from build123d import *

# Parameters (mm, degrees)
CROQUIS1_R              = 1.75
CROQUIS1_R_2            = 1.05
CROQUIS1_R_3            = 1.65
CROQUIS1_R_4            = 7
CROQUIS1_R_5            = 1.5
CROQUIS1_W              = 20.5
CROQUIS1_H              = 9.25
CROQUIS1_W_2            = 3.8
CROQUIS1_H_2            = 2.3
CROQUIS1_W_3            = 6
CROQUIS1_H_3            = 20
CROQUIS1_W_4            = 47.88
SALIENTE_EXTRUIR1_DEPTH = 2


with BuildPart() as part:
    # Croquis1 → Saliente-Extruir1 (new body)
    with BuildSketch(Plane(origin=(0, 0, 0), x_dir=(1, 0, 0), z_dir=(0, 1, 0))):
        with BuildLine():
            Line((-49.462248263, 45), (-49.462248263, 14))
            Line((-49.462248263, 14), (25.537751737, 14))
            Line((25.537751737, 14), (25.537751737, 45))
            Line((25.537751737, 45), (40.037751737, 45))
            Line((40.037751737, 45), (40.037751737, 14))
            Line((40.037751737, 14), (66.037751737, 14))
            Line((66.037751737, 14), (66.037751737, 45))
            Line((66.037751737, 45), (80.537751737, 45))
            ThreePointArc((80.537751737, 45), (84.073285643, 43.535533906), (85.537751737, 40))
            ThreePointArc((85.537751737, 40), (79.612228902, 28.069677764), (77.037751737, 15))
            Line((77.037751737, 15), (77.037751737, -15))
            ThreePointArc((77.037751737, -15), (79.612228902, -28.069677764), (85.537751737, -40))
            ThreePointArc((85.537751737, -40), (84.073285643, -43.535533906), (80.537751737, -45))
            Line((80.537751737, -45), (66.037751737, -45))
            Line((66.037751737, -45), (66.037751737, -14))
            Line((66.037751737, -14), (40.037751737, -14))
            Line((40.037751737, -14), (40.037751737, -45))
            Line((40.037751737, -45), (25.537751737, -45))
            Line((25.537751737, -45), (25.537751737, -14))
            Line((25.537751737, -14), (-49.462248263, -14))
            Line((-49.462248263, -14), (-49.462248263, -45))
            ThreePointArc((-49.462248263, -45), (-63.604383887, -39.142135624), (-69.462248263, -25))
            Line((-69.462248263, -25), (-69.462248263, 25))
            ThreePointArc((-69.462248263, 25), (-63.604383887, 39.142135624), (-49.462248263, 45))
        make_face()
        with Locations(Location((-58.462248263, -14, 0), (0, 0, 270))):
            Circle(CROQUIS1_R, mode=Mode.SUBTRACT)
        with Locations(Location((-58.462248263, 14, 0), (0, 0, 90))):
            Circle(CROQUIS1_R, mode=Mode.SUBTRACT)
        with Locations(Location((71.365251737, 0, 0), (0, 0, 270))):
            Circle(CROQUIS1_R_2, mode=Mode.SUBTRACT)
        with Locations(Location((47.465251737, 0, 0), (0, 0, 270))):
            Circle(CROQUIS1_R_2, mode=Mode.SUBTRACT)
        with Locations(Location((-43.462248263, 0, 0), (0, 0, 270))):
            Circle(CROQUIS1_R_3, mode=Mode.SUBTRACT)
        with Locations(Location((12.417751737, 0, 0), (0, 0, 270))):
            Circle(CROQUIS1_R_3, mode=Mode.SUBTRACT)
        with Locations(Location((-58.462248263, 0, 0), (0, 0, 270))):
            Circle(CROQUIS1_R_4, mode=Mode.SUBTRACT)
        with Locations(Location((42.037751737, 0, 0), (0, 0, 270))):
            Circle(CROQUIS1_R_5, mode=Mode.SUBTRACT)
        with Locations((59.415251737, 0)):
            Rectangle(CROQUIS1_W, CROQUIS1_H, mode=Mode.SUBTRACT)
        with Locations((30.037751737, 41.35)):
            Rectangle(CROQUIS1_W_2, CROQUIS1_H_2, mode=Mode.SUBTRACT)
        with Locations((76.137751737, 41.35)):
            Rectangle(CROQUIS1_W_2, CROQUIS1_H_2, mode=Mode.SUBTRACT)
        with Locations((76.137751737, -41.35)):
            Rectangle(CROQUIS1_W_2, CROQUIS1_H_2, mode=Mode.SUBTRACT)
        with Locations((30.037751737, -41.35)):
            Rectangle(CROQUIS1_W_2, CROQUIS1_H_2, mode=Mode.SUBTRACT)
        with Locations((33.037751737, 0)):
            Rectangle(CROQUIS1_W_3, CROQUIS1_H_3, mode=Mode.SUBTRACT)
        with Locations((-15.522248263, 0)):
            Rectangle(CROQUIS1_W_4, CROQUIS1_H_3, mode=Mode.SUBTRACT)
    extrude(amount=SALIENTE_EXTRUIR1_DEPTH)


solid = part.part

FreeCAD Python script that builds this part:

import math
import FreeCAD as App
import Part
import Sketcher
Q = App.Units.Quantity

doc = App.newDocument("Part")
body = doc.addObject("PartDesign::Body", "Body")

# Sketch on XZ plane
sketch1 = body.newObject("Sketcher::SketchObject", "Sketch")
sketch1.AttachmentSupport = (doc.getObject("XZ_Plane"), [""])
sketch1.MapMode = "FlatFace"
sketch1.addGeometry([
    Part.LineSegment(App.Vector(-49.462248, -14, 0), App.Vector(-49.462248, -45, 0)),  # 0
    Part.ArcOfCircle(Part.Circle(App.Vector(-49.462248, -25, 0), App.Vector(0, 0, 1), 20), math.radians(180), math.radians(270)),  # 1
    Part.LineSegment(App.Vector(-69.462248, -25, 0), App.Vector(-69.462248, 25, 0)),  # 2
    Part.ArcOfCircle(Part.Circle(App.Vector(-49.462248, 25, 0), App.Vector(0, 0, 1), 20), math.radians(90), math.radians(180)),  # 3
    Part.LineSegment(App.Vector(-49.462248, 45, 0), App.Vector(-49.462248, 14, 0)),  # 4
    Part.LineSegment(App.Vector(-49.462248, 14, 0), App.Vector(25.537752, 14, 0)),  # 5
    Part.LineSegment(App.Vector(25.537752, 14, 0), App.Vector(25.537752, 45, 0)),  # 6
    Part.LineSegment(App.Vector(25.537752, 45, 0), App.Vector(40.037752, 45, 0)),  # 7
    Part.LineSegment(App.Vector(40.037752, 45, 0), App.Vector(40.037752, 14, 0)),  # 8
    Part.LineSegment(App.Vector(40.037752, 14, 0), App.Vector(66.037752, 14, 0)),  # 9
    Part.LineSegment(App.Vector(66.037752, 14, 0), App.Vector(66.037752, 45, 0)),  # 10
    Part.LineSegment(App.Vector(66.037752, 45, 0), App.Vector(80.537752, 45, 0)),  # 11
    Part.ArcOfCircle(Part.Circle(App.Vector(80.537752, 40, 0), App.Vector(0, 0, 1), 5), math.radians(0), math.radians(90)),  # 12
    Part.ArcOfCircle(Part.Circle(App.Vector(127.077227, 11.931578, 0), App.Vector(0, 0, 1), 50.133465), math.radians(145.952918), math.radians(176.491015)),  # 13
    Part.LineSegment(App.Vector(77.037752, 15, 0), App.Vector(77.037752, -15, 0)),  # 14
    Part.ArcOfCircle(Part.Circle(App.Vector(127.077227, -11.931578, 0), App.Vector(0, 0, 1), 50.133465), math.radians(-176.491015), math.radians(-145.952918)),  # 15
    Part.ArcOfCircle(Part.Circle(App.Vector(80.537752, -40, 0), App.Vector(0, 0, 1), 5), math.radians(-90), math.radians(0)),  # 16
    Part.LineSegment(App.Vector(80.537752, -45, 0), App.Vector(66.037752, -45, 0)),  # 17
    Part.LineSegment(App.Vector(66.037752, -45, 0), App.Vector(66.037752, -14, 0)),  # 18
    Part.LineSegment(App.Vector(66.037752, -14, 0), App.Vector(40.037752, -14, 0)),  # 19
    Part.LineSegment(App.Vector(40.037752, -14, 0), App.Vector(40.037752, -45, 0)),  # 20
    Part.LineSegment(App.Vector(40.037752, -45, 0), App.Vector(25.537752, -45, 0)),  # 21
    Part.LineSegment(App.Vector(25.537752, -45, 0), App.Vector(25.537752, -14, 0)),  # 22
    Part.LineSegment(App.Vector(25.537752, -14, 0), App.Vector(-49.462248, -14, 0)),  # 23
    Part.LineSegment(App.Vector(74.237752, 42.5, 0), App.Vector(74.237752, 40.2, 0)),  # 24
    Part.LineSegment(App.Vector(74.237752, 40.2, 0), App.Vector(78.037752, 40.2, 0)),  # 25
    Part.LineSegment(App.Vector(78.037752, 40.2, 0), App.Vector(78.037752, 42.5, 0)),  # 26
    Part.LineSegment(App.Vector(78.037752, 42.5, 0), App.Vector(74.237752, 42.5, 0)),  # 27
    Part.LineSegment(App.Vector(28.137752, 42.5, 0), App.Vector(28.137752, 40.2, 0)),  # 28
    Part.LineSegment(App.Vector(28.137752, 40.2, 0), App.Vector(31.937752, 40.2, 0)),  # 29
    Part.LineSegment(App.Vector(31.937752, 40.2, 0), App.Vector(31.937752, 42.5, 0)),  # 30
    Part.LineSegment(App.Vector(31.937752, 42.5, 0), App.Vector(28.137752, 42.5, 0)),  # 31
    Part.Circle(App.Vector(-58.462248, 14, 0), App.Vector(0, 0, 1), 1.75),  # 32
    Part.Circle(App.Vector(71.365252, 0, 0), App.Vector(0, 0, 1), 1.05),  # 33
    Part.LineSegment(App.Vector(49.165252, 4.625, 0), App.Vector(49.165252, -4.625, 0)),  # 34
    Part.LineSegment(App.Vector(49.165252, -4.625, 0), App.Vector(69.665252, -4.625, 0)),  # 35
    Part.LineSegment(App.Vector(69.665252, -4.625, 0), App.Vector(69.665252, 4.625, 0)),  # 36
    Part.LineSegment(App.Vector(69.665252, 4.625, 0), App.Vector(49.165252, 4.625, 0)),  # 37
    Part.Circle(App.Vector(47.465252, 0, 0), App.Vector(0, 0, 1), 1.05),  # 38
    Part.Circle(App.Vector(42.037752, 0, 0), App.Vector(0, 0, 1), 1.5),  # 39
    Part.LineSegment(App.Vector(30.037752, 10, 0), App.Vector(30.037752, -10, 0)),  # 40
    Part.LineSegment(App.Vector(30.037752, -10, 0), App.Vector(36.037752, -10, 0)),  # 41
    Part.LineSegment(App.Vector(36.037752, -10, 0), App.Vector(36.037752, 10, 0)),  # 42
    Part.LineSegment(App.Vector(36.037752, 10, 0), App.Vector(30.037752, 10, 0)),  # 43
    Part.Circle(App.Vector(12.417752, 0, 0), App.Vector(0, 0, 1), 1.65),  # 44
    Part.LineSegment(App.Vector(74.237752, -40.2, 0), App.Vector(74.237752, -42.5, 0)),  # 45
    Part.LineSegment(App.Vector(74.237752, -42.5, 0), App.Vector(78.037752, -42.5, 0)),  # 46
    Part.LineSegment(App.Vector(78.037752, -42.5, 0), App.Vector(78.037752, -40.2, 0)),  # 47
    Part.LineSegment(App.Vector(78.037752, -40.2, 0), App.Vector(74.237752, -40.2, 0)),  # 48
    Part.LineSegment(App.Vector(28.137752, -40.2, 0), App.Vector(28.137752, -42.5, 0)),  # 49
    Part.LineSegment(App.Vector(28.137752, -42.5, 0), App.Vector(31.937752, -42.5, 0)),  # 50
    Part.LineSegment(App.Vector(31.937752, -42.5, 0), App.Vector(31.937752, -40.2, 0)),  # 51
    Part.LineSegment(App.Vector(31.937752, -40.2, 0), App.Vector(28.137752, -40.2, 0)),  # 52
    Part.LineSegment(App.Vector(-39.462248, 10, 0), App.Vector(-39.462248, -10, 0)),  # 53
    Part.LineSegment(App.Vector(-39.462248, -10, 0), App.Vector(8.417752, -10, 0)),  # 54
    Part.LineSegment(App.Vector(8.417752, -10, 0), App.Vector(8.417752, 10, 0)),  # 55
    Part.LineSegment(App.Vector(8.417752, 10, 0), App.Vector(-39.462248, 10, 0)),  # 56
    Part.Circle(App.Vector(-43.462248, 0, 0), App.Vector(0, 0, 1), 1.65),  # 57
    Part.Circle(App.Vector(-58.462248, 0, 0), App.Vector(0, 0, 1), 7),  # 58
    Part.Circle(App.Vector(-58.462248, -14, 0), App.Vector(0, 0, 1), 1.75),  # 59
], False)
sketch1.addConstraint([
    Sketcher.Constraint("Coincident", 0, 2, 1, 2),
    Sketcher.Constraint("Tangent", 1, 1, 2, 1),
    Sketcher.Constraint("Tangent", 2, 2, 3, 2),
    Sketcher.Constraint("Coincident", 3, 1, 4, 1),
    Sketcher.Constraint("Coincident", 4, 2, 5, 1),
    Sketcher.Constraint("Coincident", 5, 2, 6, 1),
    Sketcher.Constraint("Coincident", 6, 2, 7, 1),
    Sketcher.Constraint("Coincident", 7, 2, 8, 1),
    Sketcher.Constraint("Coincident", 8, 2, 9, 1),
    Sketcher.Constraint("Coincident", 9, 2, 10, 1),
    Sketcher.Constraint("Coincident", 10, 2, 11, 1),
    Sketcher.Constraint("Tangent", 11, 2, 12, 2),
    Sketcher.Constraint("Coincident", 12, 1, 13, 1),
    Sketcher.Constraint("Coincident", 13, 2, 14, 1),
    Sketcher.Constraint("Coincident", 14, 2, 15, 1),
    Sketcher.Constraint("Coincident", 15, 2, 16, 2),
    Sketcher.Constraint("Tangent", 16, 1, 17, 1),
    Sketcher.Constraint("Coincident", 17, 2, 18, 1),
    Sketcher.Constraint("Coincident", 18, 2, 19, 1),
    Sketcher.Constraint("Coincident", 19, 2, 20, 1),
    Sketcher.Constraint("Coincident", 20, 2, 21, 1),
    Sketcher.Constraint("Coincident", 21, 2, 22, 1),
    Sketcher.Constraint("Coincident", 22, 2, 23, 1),
    Sketcher.Constraint("Coincident", 23, 2, 0, 1),
    Sketcher.Constraint("Coincident", 24, 2, 25, 1),
    Sketcher.Constraint("Coincident", 25, 2, 26, 1),
    Sketcher.Constraint("Coincident", 26, 2, 27, 1),
    Sketcher.Constraint("Coincident", 27, 2, 24, 1),
    Sketcher.Constraint("Coincident", 28, 2, 29, 1),
    Sketcher.Constraint("Coincident", 29, 2, 30, 1),
    Sketcher.Constraint("Coincident", 30, 2, 31, 1),
    Sketcher.Constraint("Coincident", 31, 2, 28, 1),
    Sketcher.Constraint("Coincident", 34, 2, 35, 1),
    Sketcher.Constraint("Coincident", 35, 2, 36, 1),
    Sketcher.Constraint("Coincident", 36, 2, 37, 1),
    Sketcher.Constraint("Coincident", 37, 2, 34, 1),
    Sketcher.Constraint("Coincident", 40, 2, 41, 1),
    Sketcher.Constraint("Coincident", 41, 2, 42, 1),
    Sketcher.Constraint("Coincident", 42, 2, 43, 1),
    Sketcher.Constraint("Coincident", 43, 2, 40, 1),
    Sketcher.Constraint("Coincident", 45, 2, 46, 1),
    Sketcher.Constraint("Coincident", 46, 2, 47, 1),
    Sketcher.Constraint("Coincident", 47, 2, 48, 1),
    Sketcher.Constraint("Coincident", 48, 2, 45, 1),
    Sketcher.Constraint("Coincident", 49, 2, 50, 1),
    Sketcher.Constraint("Coincident", 50, 2, 51, 1),
    Sketcher.Constraint("Coincident", 51, 2, 52, 1),
    Sketcher.Constraint("Coincident", 52, 2, 49, 1),
    Sketcher.Constraint("Coincident", 53, 2, 54, 1),
    Sketcher.Constraint("Coincident", 54, 2, 55, 1),
    Sketcher.Constraint("Coincident", 55, 2, 56, 1),
    Sketcher.Constraint("Coincident", 56, 2, 53, 1),
    Sketcher.Constraint("Vertical", 0),
    Sketcher.Constraint("Vertical", 2),
    Sketcher.Constraint("Vertical", 4),
    Sketcher.Constraint("Horizontal", 5),
    Sketcher.Constraint("Vertical", 6),
    Sketcher.Constraint("Horizontal", 7),
    Sketcher.Constraint("Vertical", 8),
    Sketcher.Constraint("Horizontal", 9),
    Sketcher.Constraint("Vertical", 10),
    Sketcher.Constraint("Horizontal", 11),
    Sketcher.Constraint("Vertical", 14),
    Sketcher.Constraint("Horizontal", 17),
    Sketcher.Constraint("Vertical", 18),
    Sketcher.Constraint("Horizontal", 19),
    Sketcher.Constraint("Vertical", 20),
    Sketcher.Constraint("Horizontal", 21),
    Sketcher.Constraint("Vertical", 22),
    Sketcher.Constraint("Horizontal", 23),
    Sketcher.Constraint("Vertical", 24),
    Sketcher.Constraint("Horizontal", 25),
    Sketcher.Constraint("Vertical", 26),
    Sketcher.Constraint("Horizontal", 27),
    Sketcher.Constraint("Vertical", 28),
    Sketcher.Constraint("Horizontal", 29),
    Sketcher.Constraint("Vertical", 30),
    Sketcher.Constraint("Horizontal", 31),
    Sketcher.Constraint("Vertical", 34),
    Sketcher.Constraint("Horizontal", 35),
    Sketcher.Constraint("Vertical", 36),
    Sketcher.Constraint("Horizontal", 37),
    Sketcher.Constraint("Vertical", 40),
    Sketcher.Constraint("Horizontal", 41),
    Sketcher.Constraint("Vertical", 42),
    Sketcher.Constraint("Horizontal", 43),
    Sketcher.Constraint("Vertical", 45),
    Sketcher.Constraint("Horizontal", 46),
    Sketcher.Constraint("Vertical", 47),
    Sketcher.Constraint("Horizontal", 48),
    Sketcher.Constraint("Vertical", 49),
    Sketcher.Constraint("Horizontal", 50),
    Sketcher.Constraint("Vertical", 51),
    Sketcher.Constraint("Horizontal", 52),
    Sketcher.Constraint("Vertical", 53),
    Sketcher.Constraint("Horizontal", 54),
    Sketcher.Constraint("Vertical", 55),
    Sketcher.Constraint("Horizontal", 56),
    Sketcher.Constraint("Equal", 1, 3),
    Sketcher.Constraint("Equal", 13, 15),
    Sketcher.Constraint("Equal", 12, 16),
    Sketcher.Constraint("Equal", 33, 38),
    Sketcher.Constraint("Equal", 44, 57),
    Sketcher.Constraint("Equal", 32, 59),
    Sketcher.Constraint("Symmetric", 13, 3, 15, 3, -1),
    Sketcher.Constraint("Symmetric", 12, 3, 16, 3, -1),
    Sketcher.Constraint("Symmetric", 32, 3, 59, 3, -1),
    Sketcher.Constraint("Symmetric", 0, 2, 3, 1, -1),
    Sketcher.Constraint("Symmetric", 9, 2, 18, 2, -1),
    Sketcher.Constraint("Symmetric", 7, 2, 20, 2, -1),
    Sketcher.Constraint("Symmetric", 5, 2, 22, 2, -1),
    Sketcher.Constraint("Symmetric", 27, 2, 45, 2, -1),
    Sketcher.Constraint("Symmetric", 25, 2, 47, 2, -1),
    Sketcher.Constraint("Symmetric", 31, 2, 49, 2, -1),
    Sketcher.Constraint("Symmetric", 29, 2, 51, 2, -1),
    Sketcher.Constraint("PointOnObject", 33, 3, -1),
    Sketcher.Constraint("PointOnObject", 38, 3, -1),
    Sketcher.Constraint("PointOnObject", 39, 3, -1),
    Sketcher.Constraint("PointOnObject", 44, 3, -1),
    Sketcher.Constraint("PointOnObject", 57, 3, -1),
    Sketcher.Constraint("PointOnObject", 58, 3, -1),
    Sketcher.Constraint("Horizontal", 32, 3, 4, 2),
    Sketcher.Constraint("Horizontal", 3, 1, 6, 2),
    Sketcher.Constraint("Horizontal", 5, 2, 8, 2),
    Sketcher.Constraint("Horizontal", 7, 2, 10, 2),
    Sketcher.Constraint("Horizontal", 16, 3, 15, 2),
    Sketcher.Constraint("Horizontal", 25, 2, 28, 2),
    Sketcher.Constraint("Horizontal", 27, 2, 30, 2),
    Sketcher.Constraint("Horizontal", 41, 2, 53, 2),
    Sketcher.Constraint("Horizontal", 43, 2, 55, 2),
    Sketcher.Constraint("Vertical", 32, 3, 58, 3),
    Sketcher.Constraint("Vertical", 3, 3, 0, 2),
    Sketcher.Constraint("Equal", 7, 11),
    Sketcher.Constraint("Equal", 27, 29),
    Sketcher.Constraint("Diameter", 39, Q("3 mm")),
    Sketcher.Constraint("Diameter", 58, Q("14 mm")),
    Sketcher.Constraint("Radius", 1, Q("20 mm")),
    Sketcher.Constraint("Radius", 12, Q("5 mm")),
    Sketcher.Constraint("Diameter", 32, Q("3.5 mm")),
    Sketcher.Constraint("Diameter", 33, Q("2.1 mm")),
    Sketcher.Constraint("Diameter", 44, Q("3.3 mm")),
    Sketcher.Constraint("DistanceX", 5, 1, 5, 2, Q("75 mm")),
    Sketcher.Constraint("DistanceX", 9, 1, 9, 2, Q("26 mm")),
    Sketcher.Constraint("DistanceX", 41, 1, 41, 2, Q("6 mm")),
    Sketcher.Constraint("DistanceY", 0, 2, 0, 1, Q("31 mm")),
    Sketcher.Constraint("DistanceY", 2, 1, 2, 2, Q("50 mm")),
    Sketcher.Constraint("DistanceY", 14, 2, 14, 1, Q("30 mm")),
    Sketcher.Constraint("DistanceY", 40, 2, 40, 1, Q("20 mm")),
    Sketcher.Constraint("DistanceX", 7, 1, 7, 2, Q("14.5 mm")),
    Sketcher.Constraint("DistanceX", 25, 1, 25, 2, Q("3.8 mm")),
    Sketcher.Constraint("DistanceX", 35, 1, 35, 2, Q("20.5 mm")),
    Sketcher.Constraint("DistanceY", 24, 2, 24, 1, Q("2.3 mm")),
    Sketcher.Constraint("DistanceY", 40, 2, -1, 1, Q("10 mm")),
    Sketcher.Constraint("DistanceX", 54, 1, 54, 2, Q("47.88 mm")),
    Sketcher.Constraint("DistanceY", 34, 2, 34, 1, Q("9.25 mm")),
    Sketcher.Constraint("DistanceY", -1, 1, 24, 2, Q("40.2 mm")),
    Sketcher.Constraint("DistanceY", 34, 2, -1, 1, Q("4.625 mm")),
    Sketcher.Constraint("Radius", 13, Q("50.133465 mm")),
    Sketcher.Constraint("DistanceX", 1, 3, -1, 1, Q("49.462248 mm")),
    Sketcher.Constraint("DistanceY", -1, 1, 13, 3, Q("11.931578 mm")),
    Sketcher.Constraint("DistanceX", 32, 3, -1, 1, Q("58.462248 mm")),
    Sketcher.Constraint("DistanceX", -1, 1, 33, 3, Q("71.365252 mm")),
    Sketcher.Constraint("DistanceX", -1, 1, 38, 3, Q("47.465252 mm")),
    Sketcher.Constraint("DistanceX", -1, 1, 39, 3, Q("42.037752 mm")),
    Sketcher.Constraint("DistanceX", -1, 1, 44, 3, Q("12.417752 mm")),
    Sketcher.Constraint("DistanceX", 57, 3, -1, 1, Q("43.462248 mm")),
    Sketcher.Constraint("DistanceX", -1, 1, 24, 2, Q("74.237752 mm")),
    Sketcher.Constraint("DistanceX", -1, 1, 28, 2, Q("28.137752 mm")),
    Sketcher.Constraint("DistanceX", -1, 1, 34, 2, Q("49.165252 mm")),
    Sketcher.Constraint("DistanceX", -1, 1, 40, 2, Q("30.037752 mm")),
    Sketcher.Constraint("DistanceX", 53, 2, -1, 1, Q("39.462248 mm")),
])
pad1 = body.newObject("PartDesign::Pad", "Pad")
pad1.Profile = sketch1
pad1.Length = 2
pad1.Reversed = True

doc.recompute()
